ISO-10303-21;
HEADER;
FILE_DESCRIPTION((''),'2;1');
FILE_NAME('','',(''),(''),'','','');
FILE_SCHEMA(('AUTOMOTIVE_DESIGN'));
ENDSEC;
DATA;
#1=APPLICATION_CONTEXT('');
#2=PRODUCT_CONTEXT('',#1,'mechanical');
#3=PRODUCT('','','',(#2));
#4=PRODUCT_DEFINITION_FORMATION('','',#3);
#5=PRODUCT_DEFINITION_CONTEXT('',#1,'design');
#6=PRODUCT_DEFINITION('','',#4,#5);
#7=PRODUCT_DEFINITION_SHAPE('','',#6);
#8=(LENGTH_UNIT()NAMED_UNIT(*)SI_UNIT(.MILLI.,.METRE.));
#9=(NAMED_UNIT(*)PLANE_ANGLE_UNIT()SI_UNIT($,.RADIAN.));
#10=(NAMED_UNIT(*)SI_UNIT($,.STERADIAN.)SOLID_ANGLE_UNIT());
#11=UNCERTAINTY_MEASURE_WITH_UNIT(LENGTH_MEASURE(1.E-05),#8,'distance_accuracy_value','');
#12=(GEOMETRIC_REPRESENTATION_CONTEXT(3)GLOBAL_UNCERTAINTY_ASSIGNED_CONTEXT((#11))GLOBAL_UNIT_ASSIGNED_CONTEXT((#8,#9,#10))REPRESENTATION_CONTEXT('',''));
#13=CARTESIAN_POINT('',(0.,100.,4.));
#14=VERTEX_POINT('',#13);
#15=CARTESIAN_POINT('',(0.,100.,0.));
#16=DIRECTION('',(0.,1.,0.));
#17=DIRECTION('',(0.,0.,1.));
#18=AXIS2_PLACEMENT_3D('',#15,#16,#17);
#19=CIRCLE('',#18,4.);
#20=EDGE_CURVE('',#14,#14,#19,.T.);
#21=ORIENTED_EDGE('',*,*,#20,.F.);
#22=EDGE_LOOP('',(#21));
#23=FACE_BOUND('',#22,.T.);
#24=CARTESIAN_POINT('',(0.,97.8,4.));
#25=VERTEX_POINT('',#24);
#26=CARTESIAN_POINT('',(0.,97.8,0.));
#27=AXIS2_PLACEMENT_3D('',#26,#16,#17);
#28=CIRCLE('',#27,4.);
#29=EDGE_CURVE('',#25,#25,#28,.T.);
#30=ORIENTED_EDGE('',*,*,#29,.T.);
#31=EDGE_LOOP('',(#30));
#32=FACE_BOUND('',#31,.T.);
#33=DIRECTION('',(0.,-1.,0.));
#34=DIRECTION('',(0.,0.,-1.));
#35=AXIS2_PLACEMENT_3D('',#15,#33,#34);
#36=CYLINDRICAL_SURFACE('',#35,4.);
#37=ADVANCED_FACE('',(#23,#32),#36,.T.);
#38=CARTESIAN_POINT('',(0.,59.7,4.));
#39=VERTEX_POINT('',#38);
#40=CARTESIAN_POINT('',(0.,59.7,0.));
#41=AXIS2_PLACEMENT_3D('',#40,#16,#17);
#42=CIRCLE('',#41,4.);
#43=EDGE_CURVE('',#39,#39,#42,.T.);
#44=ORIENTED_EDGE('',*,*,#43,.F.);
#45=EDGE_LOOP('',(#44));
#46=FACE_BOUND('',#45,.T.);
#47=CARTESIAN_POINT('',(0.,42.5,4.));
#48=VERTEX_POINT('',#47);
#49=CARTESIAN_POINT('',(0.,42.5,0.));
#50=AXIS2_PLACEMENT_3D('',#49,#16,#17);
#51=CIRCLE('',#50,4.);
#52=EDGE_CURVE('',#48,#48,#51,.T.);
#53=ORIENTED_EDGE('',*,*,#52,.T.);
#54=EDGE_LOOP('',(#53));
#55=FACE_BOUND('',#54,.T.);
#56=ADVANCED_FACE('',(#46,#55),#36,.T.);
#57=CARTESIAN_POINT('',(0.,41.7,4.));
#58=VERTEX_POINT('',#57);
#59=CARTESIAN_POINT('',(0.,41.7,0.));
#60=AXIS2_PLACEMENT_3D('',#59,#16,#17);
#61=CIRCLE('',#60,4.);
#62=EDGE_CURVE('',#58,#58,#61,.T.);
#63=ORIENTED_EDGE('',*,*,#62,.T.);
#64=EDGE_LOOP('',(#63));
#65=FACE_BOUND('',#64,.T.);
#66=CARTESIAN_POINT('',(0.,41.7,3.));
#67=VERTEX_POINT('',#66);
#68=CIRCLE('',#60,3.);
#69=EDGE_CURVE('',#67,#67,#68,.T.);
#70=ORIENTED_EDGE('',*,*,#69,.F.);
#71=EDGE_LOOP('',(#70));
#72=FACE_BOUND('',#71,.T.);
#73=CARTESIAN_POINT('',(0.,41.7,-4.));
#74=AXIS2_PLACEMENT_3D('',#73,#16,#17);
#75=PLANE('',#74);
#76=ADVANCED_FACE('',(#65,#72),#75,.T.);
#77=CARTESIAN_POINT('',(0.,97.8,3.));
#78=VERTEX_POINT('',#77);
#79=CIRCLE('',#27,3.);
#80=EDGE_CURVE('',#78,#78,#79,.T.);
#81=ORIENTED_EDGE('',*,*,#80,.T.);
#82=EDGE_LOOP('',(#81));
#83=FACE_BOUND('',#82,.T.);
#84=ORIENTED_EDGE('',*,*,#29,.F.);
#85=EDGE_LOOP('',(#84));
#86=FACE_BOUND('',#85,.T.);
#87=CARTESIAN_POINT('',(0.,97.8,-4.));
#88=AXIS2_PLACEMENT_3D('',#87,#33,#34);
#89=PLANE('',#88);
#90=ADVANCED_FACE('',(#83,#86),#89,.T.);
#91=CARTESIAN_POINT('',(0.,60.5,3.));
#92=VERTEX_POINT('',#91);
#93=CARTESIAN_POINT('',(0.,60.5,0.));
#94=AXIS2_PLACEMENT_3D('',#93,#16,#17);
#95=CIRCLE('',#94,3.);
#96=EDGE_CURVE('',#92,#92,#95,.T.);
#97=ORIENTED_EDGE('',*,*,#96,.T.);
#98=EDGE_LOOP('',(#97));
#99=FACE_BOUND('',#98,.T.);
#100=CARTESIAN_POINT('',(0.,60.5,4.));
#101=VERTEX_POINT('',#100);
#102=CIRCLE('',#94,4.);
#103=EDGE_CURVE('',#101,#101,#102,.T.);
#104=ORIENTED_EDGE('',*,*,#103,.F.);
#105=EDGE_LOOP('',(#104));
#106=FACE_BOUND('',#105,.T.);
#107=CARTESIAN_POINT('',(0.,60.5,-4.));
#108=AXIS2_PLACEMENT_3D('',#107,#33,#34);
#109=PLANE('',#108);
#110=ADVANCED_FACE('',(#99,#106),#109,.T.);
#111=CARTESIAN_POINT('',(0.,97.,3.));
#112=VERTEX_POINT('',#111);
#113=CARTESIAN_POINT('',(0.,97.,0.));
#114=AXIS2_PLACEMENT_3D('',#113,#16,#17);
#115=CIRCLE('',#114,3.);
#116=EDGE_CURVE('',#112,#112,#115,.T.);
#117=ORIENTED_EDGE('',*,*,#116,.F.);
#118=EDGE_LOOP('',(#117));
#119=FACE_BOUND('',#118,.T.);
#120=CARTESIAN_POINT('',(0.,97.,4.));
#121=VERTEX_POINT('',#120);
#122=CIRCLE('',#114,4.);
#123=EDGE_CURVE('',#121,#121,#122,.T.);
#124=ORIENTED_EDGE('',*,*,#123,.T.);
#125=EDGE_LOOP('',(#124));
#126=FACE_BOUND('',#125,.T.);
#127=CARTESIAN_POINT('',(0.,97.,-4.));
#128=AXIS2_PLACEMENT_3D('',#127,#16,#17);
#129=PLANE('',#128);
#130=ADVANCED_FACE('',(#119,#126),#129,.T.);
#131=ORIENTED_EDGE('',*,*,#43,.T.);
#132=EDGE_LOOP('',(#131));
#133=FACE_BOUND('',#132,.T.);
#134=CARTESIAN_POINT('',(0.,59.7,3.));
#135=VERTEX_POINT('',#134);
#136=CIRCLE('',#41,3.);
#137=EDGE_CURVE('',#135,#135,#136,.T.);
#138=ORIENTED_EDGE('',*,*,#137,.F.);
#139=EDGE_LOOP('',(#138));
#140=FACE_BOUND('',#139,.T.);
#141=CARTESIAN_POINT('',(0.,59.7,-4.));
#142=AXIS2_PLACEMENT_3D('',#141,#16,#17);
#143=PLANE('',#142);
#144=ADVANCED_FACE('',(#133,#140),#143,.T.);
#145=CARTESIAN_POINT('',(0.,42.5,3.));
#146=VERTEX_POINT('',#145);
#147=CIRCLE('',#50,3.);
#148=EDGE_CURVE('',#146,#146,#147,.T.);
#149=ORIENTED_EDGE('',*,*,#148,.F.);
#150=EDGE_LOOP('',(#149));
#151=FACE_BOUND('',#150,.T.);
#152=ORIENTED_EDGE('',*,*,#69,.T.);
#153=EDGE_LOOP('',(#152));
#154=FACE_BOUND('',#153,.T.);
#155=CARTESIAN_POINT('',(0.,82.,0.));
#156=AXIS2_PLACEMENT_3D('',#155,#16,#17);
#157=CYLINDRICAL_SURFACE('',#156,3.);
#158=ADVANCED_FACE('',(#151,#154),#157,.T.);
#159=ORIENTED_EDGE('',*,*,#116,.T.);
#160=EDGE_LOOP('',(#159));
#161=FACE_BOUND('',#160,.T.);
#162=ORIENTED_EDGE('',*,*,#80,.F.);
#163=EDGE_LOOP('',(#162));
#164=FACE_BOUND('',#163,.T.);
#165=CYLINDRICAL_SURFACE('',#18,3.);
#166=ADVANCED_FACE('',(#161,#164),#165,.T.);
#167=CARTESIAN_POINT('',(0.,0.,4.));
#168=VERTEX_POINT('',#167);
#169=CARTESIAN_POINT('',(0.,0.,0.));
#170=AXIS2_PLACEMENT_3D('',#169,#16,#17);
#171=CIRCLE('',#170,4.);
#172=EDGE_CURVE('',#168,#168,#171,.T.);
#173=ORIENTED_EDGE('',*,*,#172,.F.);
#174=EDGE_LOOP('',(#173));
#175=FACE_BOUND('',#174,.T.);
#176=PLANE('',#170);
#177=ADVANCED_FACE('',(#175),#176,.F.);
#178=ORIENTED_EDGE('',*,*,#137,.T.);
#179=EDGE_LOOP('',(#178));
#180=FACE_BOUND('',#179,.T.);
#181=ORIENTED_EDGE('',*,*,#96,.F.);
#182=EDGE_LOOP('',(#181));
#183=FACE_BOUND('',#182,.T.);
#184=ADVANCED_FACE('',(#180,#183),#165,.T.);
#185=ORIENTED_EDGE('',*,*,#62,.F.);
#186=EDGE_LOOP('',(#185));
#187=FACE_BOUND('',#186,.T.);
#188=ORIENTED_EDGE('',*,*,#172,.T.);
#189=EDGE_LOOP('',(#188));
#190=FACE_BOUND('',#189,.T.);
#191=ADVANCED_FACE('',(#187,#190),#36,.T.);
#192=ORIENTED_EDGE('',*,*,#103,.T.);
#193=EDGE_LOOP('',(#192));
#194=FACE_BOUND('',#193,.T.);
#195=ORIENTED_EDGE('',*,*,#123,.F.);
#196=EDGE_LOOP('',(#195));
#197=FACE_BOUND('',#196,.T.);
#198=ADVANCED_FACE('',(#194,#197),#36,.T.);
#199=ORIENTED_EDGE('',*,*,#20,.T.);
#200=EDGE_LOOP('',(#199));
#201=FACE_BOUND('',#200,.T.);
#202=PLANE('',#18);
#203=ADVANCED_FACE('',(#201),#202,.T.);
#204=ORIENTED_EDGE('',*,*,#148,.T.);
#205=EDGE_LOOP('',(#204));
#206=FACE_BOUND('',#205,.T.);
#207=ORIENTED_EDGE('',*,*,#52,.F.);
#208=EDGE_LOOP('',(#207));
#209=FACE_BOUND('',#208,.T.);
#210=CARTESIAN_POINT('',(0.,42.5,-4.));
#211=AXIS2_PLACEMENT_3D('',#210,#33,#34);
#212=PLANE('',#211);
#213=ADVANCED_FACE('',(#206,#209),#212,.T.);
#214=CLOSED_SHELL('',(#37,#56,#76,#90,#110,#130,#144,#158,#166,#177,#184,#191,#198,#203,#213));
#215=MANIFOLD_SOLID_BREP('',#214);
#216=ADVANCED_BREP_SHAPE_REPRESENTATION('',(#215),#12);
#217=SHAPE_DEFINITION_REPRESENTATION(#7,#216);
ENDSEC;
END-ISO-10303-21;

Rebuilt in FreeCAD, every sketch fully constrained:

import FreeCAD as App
import Part
import Sketcher
Q = App.Units.Quantity

doc = App.newDocument("Part")
params = doc.addObject("Spreadsheet::Sheet", "Params")
for row, (alias, value) in enumerate([
    ("sketch1_diameter", "8 mm"),
    ("pad1_length", "100 mm"),
    ("sketch2_height", "1 mm"),
    ("sketch2_width", "0.8 mm"),
    ("groove_angle", "360 deg"),
    ("sketch3_height", "1 mm"),
    ("sketch3_width", "0.8 mm"),
    ("groove2_angle", "360 deg"),
    ("linearpattern_pitch", "18 mm"),
], start=1):
    params.set(f"A{row}", alias)
    params.set(f"B{row}", "=" + value)
    params.setAlias(f"B{row}", alias)

body = doc.addObject("PartDesign::Body", "Body")

sketch1 = doc.addObject("Sketcher::SketchObject", "Sketch")
body.addObject(sketch1)
sketch1.AttachmentSupport = (doc.XZ_Plane, [""])
sketch1.MapMode = "FlatFace"
sketch1.addGeometry(Part.Circle(App.Vector(0, 0, 0), App.Vector(0, 0, 1), 4), False)
sketch1.addConstraint([
    Sketcher.Constraint("Coincident", 0, 3, -1, 1),
    Sketcher.Constraint("Diameter", 0, Q("8 mm")),
])
sketch1.setExpression("Constraints[1]", "Params.sketch1_diameter")
pad1 = doc.addObject("PartDesign::Pad", "Pad")
body.addObject(pad1)
pad1.Profile = sketch1
pad1.setExpression("Length", "Params.pad1_length")
pad1.Reversed = True

sketch2 = doc.addObject("Sketcher::SketchObject", "Sketch001")
body.addObject(sketch2)
sketch2.AttachmentSupport = (doc.YZ_Plane, [""])
sketch2.MapMode = "FlatFace"
sketch2.addGeometry([
    Part.LineSegment(App.Vector(97.8, -3, 0), App.Vector(97, -3, 0)),
    Part.LineSegment(App.Vector(97, -3, 0), App.Vector(97, -4, 0)),
    Part.LineSegment(App.Vector(97, -4, 0), App.Vector(97.8, -4, 0)),
    Part.LineSegment(App.Vector(97.8, -4, 0), App.Vector(97.8, -3, 0)),
], False)
sketch2.addConstraint([
    Sketcher.Constraint("Coincident", 0, 2, 1, 1),
    Sketcher.Constraint("Coincident", 1, 2, 2, 1),
    Sketcher.Constraint("Coincident", 2, 2, 3, 1),
    Sketcher.Constraint("Coincident", 3, 2, 0, 1),
    Sketcher.Constraint("Horizontal", 0),
    Sketcher.Constraint("Vertical", 1),
    Sketcher.Constraint("Horizontal", 2),
    Sketcher.Constraint("Vertical", 3),
    Sketcher.Constraint("DistanceY", 1, 2, 1, 1, Q("1 mm")),
    Sketcher.Constraint("DistanceX", 0, 2, 0, 1, Q("0.8 mm")),
    Sketcher.Constraint("DistanceX", -1, 1, 0, 2, Q("97 mm")),
    Sketcher.Constraint("DistanceY", 0, 2, -1, 1, Q("3 mm")),
])
sketch2.setExpression("Constraints[8]", "Params.sketch2_height")
sketch2.setExpression("Constraints[9]", "Params.sketch2_width")
groove = doc.addObject("PartDesign::Groove", "Groove")
body.addObject(groove)
groove.Profile = sketch2
groove.ReferenceAxis = (sketch2, ["H_Axis"])
groove.setExpression("Angle", "Params.groove_angle")

sketch3 = doc.addObject("Sketcher::SketchObject", "Sketch002")
body.addObject(sketch3)
sketch3.AttachmentSupport = (doc.YZ_Plane, [""])
sketch3.MapMode = "FlatFace"
sketch3.addGeometry([
    Part.LineSegment(App.Vector(60.5, -3, 0), App.Vector(59.7, -3, 0)),
    Part.LineSegment(App.Vector(59.7, -3, 0), App.Vector(59.7, -4, 0)),
    Part.LineSegment(App.Vector(59.7, -4, 0), App.Vector(60.5, -4, 0)),
    Part.LineSegment(App.Vector(60.5, -4, 0), App.Vector(60.5, -3, 0)),
], False)
sketch3.addConstraint([
    Sketcher.Constraint("Coincident", 0, 2, 1, 1),
    Sketcher.Constraint("Coincident", 1, 2, 2, 1),
    Sketcher.Constraint("Coincident", 2, 2, 3, 1),
    Sketcher.Constraint("Coincident", 3, 2, 0, 1),
    Sketcher.Constraint("Horizontal", 0),
    Sketcher.Constraint("Vertical", 1),
    Sketcher.Constraint("Horizontal", 2),
    Sketcher.Constraint("Vertical", 3),
    Sketcher.Constraint("DistanceY", 1, 2, 1, 1, Q("1 mm")),
    Sketcher.Constraint("DistanceX", 0, 2, 0, 1, Q("0.8 mm")),
    Sketcher.Constraint("DistanceY", 0, 2, -1, 1, Q("3 mm")),
    Sketcher.Constraint("DistanceX", -1, 1, 0, 2, Q("59.7 mm")),
])
sketch3.setExpression("Constraints[8]", "Params.sketch3_height")
sketch3.setExpression("Constraints[9]", "Params.sketch3_width")
groove2 = doc.addObject("PartDesign::Groove", "Groove001")
body.addObject(groove2)
groove2.Profile = sketch3
groove2.ReferenceAxis = (sketch3, ["H_Axis"])
groove2.setExpression("Angle", "Params.groove2_angle")
doc.recompute()

linearpattern = doc.addObject("PartDesign::LinearPattern", "LinearPattern")
body.addObject(linearpattern)
linearpattern.Originals = [groove2]
linearpattern.Direction = (doc.Y_Axis, [""])
linearpattern.Mode = "offset"
linearpattern.setExpression("Offset", "Params.linearpattern_pitch")
linearpattern.Occurrences = 2
linearpattern.Reversed = True
body.Tip = linearpattern

doc.recompute()
